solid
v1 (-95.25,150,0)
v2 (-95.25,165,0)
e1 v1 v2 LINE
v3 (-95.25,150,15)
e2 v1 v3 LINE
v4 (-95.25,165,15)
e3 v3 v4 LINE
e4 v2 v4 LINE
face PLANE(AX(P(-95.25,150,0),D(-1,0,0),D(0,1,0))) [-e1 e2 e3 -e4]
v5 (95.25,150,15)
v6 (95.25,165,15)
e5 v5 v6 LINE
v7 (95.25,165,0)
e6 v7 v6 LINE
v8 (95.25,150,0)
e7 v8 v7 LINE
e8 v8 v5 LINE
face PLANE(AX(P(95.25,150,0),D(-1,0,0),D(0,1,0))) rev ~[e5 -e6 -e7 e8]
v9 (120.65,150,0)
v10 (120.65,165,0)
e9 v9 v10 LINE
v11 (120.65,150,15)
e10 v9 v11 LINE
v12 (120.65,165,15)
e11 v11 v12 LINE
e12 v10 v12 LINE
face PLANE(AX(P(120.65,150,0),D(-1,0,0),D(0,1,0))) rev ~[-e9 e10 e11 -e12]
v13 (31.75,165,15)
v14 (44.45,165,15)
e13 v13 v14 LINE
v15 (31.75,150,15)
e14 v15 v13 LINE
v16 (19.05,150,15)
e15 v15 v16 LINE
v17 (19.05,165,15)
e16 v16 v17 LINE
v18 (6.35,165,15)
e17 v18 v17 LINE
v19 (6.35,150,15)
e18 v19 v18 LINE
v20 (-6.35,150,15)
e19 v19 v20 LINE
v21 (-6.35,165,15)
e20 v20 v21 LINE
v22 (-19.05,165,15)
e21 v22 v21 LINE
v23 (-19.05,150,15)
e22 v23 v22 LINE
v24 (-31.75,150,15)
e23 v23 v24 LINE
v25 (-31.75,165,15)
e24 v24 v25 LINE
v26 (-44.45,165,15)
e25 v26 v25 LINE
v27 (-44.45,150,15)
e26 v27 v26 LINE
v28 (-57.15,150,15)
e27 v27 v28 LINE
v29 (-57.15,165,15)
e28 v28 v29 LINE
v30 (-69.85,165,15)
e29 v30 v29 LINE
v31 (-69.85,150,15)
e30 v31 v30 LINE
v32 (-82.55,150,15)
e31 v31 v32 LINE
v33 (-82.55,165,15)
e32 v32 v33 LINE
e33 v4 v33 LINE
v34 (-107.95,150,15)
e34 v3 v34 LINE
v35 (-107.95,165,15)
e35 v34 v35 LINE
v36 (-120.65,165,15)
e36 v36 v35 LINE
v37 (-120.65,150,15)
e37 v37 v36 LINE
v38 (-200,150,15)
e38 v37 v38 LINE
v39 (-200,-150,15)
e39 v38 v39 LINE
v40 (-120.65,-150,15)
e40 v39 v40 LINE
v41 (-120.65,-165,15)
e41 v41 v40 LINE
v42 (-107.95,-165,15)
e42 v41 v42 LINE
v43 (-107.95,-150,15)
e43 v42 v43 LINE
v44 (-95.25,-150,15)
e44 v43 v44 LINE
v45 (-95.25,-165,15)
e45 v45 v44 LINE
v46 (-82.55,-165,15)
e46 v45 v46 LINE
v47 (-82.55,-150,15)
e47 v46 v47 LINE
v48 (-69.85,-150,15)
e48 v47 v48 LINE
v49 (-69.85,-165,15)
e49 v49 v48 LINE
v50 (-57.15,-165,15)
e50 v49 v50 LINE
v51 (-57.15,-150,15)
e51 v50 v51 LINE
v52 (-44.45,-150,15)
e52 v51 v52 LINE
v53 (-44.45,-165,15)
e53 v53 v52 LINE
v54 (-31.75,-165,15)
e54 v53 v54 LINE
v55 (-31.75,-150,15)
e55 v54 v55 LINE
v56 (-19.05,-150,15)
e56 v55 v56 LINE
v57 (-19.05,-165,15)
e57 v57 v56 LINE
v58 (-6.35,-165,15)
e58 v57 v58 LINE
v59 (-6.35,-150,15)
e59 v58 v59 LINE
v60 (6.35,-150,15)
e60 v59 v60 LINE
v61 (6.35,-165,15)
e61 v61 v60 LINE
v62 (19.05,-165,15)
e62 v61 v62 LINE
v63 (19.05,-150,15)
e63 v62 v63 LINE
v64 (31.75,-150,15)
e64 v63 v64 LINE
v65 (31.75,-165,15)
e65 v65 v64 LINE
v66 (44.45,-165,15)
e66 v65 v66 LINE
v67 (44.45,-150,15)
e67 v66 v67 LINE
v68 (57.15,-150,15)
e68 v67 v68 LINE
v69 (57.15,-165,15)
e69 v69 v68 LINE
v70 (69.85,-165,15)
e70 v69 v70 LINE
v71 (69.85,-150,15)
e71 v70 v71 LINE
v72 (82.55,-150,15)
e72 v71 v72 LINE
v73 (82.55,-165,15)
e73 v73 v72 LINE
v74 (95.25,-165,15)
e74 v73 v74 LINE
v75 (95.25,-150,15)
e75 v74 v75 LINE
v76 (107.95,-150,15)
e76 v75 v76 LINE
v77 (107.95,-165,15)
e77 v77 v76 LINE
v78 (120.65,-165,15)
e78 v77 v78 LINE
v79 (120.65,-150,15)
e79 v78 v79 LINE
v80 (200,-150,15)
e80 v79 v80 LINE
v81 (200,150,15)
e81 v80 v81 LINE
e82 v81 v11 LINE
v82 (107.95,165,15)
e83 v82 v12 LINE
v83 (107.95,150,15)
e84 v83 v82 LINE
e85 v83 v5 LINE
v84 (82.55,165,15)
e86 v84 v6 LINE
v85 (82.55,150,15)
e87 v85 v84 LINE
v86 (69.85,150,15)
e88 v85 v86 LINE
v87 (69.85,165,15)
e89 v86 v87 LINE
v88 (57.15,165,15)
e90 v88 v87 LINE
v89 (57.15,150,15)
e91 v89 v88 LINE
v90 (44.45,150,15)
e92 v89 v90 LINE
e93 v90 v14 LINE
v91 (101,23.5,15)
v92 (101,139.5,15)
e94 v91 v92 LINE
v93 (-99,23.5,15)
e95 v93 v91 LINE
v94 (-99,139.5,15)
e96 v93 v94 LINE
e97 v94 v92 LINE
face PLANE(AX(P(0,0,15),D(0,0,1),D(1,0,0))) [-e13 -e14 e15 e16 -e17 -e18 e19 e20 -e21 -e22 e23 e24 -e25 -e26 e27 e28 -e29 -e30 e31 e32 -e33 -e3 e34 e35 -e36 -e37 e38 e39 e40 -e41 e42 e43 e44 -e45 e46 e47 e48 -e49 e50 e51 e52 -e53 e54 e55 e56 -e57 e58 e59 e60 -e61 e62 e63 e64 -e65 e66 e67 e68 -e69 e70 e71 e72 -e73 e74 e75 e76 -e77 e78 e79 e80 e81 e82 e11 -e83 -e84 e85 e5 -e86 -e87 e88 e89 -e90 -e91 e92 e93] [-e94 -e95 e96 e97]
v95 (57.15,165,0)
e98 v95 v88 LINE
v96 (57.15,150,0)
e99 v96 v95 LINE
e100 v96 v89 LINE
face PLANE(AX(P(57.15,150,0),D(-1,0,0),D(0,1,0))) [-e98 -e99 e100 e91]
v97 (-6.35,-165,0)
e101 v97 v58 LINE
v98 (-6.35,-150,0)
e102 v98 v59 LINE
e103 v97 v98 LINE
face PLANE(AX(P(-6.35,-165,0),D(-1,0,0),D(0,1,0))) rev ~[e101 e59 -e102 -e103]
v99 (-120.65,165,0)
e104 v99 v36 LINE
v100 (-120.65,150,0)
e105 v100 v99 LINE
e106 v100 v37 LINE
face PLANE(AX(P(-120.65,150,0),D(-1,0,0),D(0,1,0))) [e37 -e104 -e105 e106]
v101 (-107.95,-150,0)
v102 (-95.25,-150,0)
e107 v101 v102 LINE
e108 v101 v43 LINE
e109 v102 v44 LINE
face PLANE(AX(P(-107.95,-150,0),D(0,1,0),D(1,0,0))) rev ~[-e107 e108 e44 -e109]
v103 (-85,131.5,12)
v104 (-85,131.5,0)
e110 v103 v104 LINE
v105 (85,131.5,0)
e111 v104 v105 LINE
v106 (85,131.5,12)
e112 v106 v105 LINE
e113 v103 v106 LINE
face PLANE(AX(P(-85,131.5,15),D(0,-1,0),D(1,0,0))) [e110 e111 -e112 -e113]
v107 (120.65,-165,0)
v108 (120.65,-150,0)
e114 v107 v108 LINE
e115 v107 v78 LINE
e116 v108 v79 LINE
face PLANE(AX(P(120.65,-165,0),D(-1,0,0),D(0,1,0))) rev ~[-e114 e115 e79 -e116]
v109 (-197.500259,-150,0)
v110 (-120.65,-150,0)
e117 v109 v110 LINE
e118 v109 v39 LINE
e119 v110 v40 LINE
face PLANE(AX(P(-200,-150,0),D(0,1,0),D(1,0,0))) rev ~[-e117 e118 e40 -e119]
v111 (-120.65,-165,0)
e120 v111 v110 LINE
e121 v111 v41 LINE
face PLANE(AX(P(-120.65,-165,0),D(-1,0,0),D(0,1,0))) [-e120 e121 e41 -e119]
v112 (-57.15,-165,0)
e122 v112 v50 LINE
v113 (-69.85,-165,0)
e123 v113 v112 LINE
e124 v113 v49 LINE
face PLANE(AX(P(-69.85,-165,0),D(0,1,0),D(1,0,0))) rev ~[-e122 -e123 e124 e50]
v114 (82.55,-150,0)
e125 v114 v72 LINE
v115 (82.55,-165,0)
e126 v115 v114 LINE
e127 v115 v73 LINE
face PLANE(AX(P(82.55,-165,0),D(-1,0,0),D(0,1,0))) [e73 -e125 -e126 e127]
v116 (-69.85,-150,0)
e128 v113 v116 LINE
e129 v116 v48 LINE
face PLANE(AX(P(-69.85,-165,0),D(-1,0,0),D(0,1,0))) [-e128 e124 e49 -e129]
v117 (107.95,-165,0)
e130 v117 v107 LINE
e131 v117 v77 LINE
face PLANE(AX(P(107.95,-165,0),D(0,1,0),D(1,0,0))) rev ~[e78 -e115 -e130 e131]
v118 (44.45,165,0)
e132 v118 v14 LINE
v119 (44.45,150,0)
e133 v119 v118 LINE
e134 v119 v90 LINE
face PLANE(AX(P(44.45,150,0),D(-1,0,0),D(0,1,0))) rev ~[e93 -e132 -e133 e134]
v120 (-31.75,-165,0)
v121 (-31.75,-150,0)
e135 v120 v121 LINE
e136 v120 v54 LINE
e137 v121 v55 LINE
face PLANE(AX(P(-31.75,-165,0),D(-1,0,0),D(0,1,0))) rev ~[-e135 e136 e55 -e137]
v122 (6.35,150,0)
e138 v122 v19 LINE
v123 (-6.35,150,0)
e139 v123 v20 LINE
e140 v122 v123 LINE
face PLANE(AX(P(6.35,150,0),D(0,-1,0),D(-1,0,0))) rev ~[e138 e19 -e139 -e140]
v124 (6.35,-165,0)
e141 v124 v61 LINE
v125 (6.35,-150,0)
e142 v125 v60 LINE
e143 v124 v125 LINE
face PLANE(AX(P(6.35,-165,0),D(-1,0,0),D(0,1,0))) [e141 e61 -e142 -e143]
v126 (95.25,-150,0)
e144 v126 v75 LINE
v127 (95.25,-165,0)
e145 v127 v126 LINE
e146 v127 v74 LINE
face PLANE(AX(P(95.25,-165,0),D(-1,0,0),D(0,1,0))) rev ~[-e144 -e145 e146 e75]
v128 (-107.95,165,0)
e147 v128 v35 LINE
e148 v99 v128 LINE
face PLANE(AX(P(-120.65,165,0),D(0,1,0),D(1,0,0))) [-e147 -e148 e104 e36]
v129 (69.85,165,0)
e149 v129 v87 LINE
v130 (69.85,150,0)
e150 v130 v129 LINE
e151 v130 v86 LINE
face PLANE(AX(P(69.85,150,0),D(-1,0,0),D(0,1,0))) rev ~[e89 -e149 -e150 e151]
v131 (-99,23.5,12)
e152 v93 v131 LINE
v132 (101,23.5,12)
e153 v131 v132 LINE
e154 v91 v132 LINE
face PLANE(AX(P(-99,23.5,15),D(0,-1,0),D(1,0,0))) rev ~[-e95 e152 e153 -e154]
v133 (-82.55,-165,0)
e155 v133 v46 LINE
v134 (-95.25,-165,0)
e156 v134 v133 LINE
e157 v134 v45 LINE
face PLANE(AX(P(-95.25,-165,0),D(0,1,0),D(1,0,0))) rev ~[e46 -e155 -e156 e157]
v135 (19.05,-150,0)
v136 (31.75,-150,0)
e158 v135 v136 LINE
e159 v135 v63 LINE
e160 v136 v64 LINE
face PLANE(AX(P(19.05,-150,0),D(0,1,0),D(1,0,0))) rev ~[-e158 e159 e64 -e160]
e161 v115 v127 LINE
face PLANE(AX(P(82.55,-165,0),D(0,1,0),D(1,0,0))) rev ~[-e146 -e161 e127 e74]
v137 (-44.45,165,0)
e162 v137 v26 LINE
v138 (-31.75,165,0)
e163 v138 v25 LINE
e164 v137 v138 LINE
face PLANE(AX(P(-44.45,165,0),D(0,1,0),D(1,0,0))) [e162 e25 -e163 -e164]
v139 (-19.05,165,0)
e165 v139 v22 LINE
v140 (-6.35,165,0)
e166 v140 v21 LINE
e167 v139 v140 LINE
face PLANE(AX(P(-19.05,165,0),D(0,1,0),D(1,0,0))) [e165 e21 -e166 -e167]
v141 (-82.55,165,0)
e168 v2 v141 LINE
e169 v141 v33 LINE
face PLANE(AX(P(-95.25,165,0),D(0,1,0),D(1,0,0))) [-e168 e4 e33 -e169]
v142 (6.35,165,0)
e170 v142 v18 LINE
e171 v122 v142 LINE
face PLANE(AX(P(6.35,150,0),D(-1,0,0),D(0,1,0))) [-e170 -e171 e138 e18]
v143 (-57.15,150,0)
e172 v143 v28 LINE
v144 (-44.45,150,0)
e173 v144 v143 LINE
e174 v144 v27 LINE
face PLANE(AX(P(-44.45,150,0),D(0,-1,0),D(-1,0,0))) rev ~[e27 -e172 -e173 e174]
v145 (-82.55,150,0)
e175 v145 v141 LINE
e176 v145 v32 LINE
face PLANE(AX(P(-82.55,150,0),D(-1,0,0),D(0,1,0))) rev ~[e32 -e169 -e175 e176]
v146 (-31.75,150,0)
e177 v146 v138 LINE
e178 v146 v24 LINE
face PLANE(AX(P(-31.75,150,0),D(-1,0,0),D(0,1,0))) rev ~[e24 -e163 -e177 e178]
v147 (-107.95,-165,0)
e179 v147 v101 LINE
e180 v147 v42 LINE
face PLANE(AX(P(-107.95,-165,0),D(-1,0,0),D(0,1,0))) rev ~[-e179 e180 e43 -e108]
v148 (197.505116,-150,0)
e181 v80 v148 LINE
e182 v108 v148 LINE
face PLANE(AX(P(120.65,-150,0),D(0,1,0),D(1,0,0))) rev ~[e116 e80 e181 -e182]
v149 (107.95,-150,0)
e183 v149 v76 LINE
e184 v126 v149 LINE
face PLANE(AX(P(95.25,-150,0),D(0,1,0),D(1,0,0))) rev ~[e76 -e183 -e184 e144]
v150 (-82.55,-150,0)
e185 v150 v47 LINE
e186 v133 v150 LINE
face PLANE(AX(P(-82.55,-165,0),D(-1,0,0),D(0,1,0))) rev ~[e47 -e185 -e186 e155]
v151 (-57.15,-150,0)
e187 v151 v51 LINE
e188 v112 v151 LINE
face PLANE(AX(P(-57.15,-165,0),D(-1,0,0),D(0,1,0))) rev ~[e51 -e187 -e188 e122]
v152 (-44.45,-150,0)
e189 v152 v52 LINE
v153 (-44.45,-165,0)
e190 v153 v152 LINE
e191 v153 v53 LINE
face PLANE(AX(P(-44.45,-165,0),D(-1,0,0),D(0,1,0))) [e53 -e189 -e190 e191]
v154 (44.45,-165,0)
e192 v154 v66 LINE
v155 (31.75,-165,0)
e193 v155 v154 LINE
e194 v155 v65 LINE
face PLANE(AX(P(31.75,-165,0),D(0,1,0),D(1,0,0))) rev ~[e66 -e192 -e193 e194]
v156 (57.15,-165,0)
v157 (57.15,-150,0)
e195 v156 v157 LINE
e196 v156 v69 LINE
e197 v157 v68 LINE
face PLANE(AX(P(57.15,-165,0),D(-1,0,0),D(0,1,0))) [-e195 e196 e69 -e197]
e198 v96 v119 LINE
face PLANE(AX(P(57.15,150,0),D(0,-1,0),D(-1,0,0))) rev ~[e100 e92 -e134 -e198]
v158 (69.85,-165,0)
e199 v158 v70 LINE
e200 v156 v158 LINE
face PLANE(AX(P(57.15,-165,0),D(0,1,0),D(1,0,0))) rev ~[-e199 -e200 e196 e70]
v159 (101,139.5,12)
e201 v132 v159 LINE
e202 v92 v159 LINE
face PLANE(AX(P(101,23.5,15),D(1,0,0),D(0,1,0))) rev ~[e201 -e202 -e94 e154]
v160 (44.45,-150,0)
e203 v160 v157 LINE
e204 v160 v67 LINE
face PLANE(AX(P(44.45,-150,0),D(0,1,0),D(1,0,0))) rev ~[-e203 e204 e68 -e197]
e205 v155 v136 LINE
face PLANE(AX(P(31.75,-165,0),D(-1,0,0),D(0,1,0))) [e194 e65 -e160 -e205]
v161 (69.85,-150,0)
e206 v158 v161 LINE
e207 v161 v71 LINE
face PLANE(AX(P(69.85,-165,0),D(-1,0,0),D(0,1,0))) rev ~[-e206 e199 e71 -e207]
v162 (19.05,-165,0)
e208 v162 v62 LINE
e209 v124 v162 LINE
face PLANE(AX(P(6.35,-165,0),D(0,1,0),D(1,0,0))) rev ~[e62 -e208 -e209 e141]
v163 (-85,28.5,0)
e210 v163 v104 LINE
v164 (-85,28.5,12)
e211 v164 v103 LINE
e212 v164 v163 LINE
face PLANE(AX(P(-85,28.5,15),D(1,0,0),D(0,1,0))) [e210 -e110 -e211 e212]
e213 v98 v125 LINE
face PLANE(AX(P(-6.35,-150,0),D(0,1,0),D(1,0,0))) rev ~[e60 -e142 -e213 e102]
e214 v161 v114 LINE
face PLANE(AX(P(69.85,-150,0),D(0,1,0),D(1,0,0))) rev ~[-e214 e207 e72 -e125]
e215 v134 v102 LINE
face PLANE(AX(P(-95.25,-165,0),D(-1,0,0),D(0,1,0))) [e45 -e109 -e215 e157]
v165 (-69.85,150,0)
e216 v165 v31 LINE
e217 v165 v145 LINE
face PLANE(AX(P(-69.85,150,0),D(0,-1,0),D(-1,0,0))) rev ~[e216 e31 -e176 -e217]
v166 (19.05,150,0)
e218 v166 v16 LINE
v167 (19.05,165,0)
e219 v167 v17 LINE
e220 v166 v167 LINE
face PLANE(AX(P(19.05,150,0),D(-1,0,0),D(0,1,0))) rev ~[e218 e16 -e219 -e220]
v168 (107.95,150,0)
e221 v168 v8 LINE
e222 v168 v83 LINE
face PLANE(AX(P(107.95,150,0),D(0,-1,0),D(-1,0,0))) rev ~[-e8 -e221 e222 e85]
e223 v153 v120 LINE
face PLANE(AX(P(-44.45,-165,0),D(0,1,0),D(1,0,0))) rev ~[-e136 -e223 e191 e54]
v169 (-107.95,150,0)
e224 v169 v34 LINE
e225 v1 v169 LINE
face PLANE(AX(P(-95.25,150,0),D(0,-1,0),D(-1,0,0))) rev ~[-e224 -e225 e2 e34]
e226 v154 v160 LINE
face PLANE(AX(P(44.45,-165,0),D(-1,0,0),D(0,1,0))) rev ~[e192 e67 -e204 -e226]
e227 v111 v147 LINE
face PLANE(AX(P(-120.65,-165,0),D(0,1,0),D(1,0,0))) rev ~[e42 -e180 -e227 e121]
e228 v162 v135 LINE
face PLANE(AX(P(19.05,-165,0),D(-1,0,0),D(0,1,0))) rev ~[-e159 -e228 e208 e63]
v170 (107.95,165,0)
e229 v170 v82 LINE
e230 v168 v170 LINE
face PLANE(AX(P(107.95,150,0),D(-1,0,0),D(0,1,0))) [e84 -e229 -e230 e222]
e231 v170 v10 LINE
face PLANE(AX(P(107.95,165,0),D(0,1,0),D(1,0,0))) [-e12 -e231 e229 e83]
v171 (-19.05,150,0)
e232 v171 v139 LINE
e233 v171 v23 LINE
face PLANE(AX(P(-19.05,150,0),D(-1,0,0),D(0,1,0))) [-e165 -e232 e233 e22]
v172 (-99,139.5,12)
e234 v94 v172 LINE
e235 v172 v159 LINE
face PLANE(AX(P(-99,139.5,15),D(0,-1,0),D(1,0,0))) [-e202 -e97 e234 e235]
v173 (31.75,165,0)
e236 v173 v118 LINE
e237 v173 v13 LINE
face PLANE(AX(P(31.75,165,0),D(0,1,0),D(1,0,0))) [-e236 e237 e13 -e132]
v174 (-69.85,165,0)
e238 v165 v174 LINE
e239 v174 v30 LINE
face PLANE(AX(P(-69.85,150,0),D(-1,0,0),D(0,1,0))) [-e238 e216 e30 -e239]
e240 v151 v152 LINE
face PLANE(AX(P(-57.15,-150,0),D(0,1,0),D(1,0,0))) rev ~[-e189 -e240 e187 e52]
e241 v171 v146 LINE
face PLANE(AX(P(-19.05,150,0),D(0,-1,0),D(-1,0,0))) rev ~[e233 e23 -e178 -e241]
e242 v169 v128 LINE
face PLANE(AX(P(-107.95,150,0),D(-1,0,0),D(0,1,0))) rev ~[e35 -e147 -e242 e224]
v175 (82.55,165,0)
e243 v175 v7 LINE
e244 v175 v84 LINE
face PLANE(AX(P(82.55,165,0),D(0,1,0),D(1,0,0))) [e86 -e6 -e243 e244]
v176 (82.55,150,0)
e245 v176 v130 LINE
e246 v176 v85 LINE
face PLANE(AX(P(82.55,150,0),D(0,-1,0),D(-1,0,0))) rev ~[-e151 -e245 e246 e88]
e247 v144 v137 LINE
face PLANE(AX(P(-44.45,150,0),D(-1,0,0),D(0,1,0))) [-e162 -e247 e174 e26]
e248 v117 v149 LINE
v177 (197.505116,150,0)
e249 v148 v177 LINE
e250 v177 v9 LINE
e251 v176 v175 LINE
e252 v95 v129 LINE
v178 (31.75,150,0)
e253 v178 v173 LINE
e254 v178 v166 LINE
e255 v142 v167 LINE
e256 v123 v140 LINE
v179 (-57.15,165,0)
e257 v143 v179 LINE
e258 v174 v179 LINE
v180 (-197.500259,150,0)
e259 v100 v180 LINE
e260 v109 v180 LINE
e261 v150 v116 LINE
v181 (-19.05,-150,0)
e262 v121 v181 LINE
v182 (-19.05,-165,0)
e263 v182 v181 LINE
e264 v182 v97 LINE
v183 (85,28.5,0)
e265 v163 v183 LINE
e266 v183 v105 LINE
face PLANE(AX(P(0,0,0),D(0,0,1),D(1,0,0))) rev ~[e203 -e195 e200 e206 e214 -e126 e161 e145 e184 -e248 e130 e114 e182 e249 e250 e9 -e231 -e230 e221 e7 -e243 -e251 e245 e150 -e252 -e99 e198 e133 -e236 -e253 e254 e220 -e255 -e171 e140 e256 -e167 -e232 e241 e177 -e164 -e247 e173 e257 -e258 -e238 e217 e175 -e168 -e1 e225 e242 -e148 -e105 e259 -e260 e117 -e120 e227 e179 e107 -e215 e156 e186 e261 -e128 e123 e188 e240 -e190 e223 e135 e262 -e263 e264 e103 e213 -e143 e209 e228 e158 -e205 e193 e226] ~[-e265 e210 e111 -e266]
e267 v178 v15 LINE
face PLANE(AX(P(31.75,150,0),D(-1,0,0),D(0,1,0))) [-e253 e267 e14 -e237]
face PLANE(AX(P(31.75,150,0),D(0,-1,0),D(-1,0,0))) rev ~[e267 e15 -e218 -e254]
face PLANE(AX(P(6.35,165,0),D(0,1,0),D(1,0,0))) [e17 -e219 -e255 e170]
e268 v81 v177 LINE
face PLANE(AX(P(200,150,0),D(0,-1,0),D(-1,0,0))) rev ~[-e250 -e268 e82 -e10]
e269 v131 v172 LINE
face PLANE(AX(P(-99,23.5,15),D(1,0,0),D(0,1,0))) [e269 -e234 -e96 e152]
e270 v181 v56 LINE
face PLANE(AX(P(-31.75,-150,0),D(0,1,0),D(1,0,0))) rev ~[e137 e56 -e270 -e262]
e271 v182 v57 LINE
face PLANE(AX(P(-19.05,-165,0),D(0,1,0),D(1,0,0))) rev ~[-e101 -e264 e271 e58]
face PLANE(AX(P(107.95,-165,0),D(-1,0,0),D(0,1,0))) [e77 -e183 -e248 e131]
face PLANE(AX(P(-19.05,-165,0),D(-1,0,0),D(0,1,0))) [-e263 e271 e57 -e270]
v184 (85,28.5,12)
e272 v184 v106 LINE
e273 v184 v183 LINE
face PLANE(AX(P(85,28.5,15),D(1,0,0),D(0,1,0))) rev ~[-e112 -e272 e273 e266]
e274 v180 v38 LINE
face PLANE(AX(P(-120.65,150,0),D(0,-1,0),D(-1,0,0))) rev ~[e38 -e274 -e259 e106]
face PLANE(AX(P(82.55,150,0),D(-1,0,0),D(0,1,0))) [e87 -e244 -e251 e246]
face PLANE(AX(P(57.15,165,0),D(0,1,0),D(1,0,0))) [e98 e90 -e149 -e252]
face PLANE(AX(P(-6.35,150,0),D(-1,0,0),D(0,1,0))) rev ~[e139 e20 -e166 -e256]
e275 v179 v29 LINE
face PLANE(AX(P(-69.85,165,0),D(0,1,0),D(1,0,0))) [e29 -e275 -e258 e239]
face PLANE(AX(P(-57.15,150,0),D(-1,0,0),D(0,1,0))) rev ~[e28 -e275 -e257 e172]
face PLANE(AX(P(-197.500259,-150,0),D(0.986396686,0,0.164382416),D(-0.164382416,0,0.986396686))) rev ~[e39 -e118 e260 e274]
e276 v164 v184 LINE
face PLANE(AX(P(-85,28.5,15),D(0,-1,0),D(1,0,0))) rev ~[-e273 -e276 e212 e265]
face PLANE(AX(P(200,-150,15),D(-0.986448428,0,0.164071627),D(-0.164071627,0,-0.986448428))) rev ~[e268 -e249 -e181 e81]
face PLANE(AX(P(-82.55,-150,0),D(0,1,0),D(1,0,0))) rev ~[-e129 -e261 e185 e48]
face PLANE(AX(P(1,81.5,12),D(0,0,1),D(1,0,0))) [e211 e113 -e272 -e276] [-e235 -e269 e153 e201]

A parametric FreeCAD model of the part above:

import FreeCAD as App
import Part
import Sketcher

V = App.Vector

doc = App.newDocument("Part")
body = doc.addObject("PartDesign::Body", "Body")

sketch1 = doc.addObject("Sketcher::SketchObject", "Sketch")
body.addObject(sketch1)
sketch1.AttachmentSupport = (doc.XY_Plane, [""])
sketch1.MapMode = "FlatFace"
sketch1.addGeometry(Part.LineSegment(V(200, -150, 0), V(200, 150, 0)), False)
sketch1.addGeometry(Part.LineSegment(V(200, 150, 0), V(120.65, 150, 0)), False)
sketch1.addGeometry(Part.LineSegment(V(120.65, 150, 0), V(120.65, 165, 0)), False)
sketch1.addGeometry(Part.LineSegment(V(120.65, 165, 0), V(107.95, 165, 0)), False)
sketch1.addGeometry(Part.LineSegment(V(107.95, 165, 0), V(107.95, 150, 0)), False)
sketch1.addGeometry(Part.LineSegment(V(107.95, 150, 0), V(95.25, 150, 0)), False)
sketch1.addGeometry(Part.LineSegment(V(95.25, 150, 0), V(95.25, 165, 0)), False)
sketch1.addGeometry(Part.LineSegment(V(95.25, 165, 0), V(82.55, 165, 0)), False)
sketch1.addGeometry(Part.LineSegment(V(82.55, 165, 0), V(82.55, 150, 0)), False)
sketch1.addGeometry(Part.LineSegment(V(82.55, 150, 0), V(69.85, 150, 0)), False)
sketch1.addGeometry(Part.LineSegment(V(69.85, 150, 0), V(69.85, 165, 0)), False)
sketch1.addGeometry(Part.LineSegment(V(69.85, 165, 0), V(57.15, 165, 0)), False)
sketch1.addGeometry(Part.LineSegment(V(57.15, 165, 0), V(57.15, 150, 0)), False)
sketch1.addGeometry(Part.LineSegment(V(57.15, 150, 0), V(44.45, 150, 0)), False)
sketch1.addGeometry(Part.LineSegment(V(44.45, 150, 0), V(44.45, 165, 0)), False)
sketch1.addGeometry(Part.LineSegment(V(44.45, 165, 0), V(31.75, 165, 0)), False)
sketch1.addGeometry(Part.LineSegment(V(31.75, 165, 0), V(31.75, 150, 0)), False)
sketch1.addGeometry(Part.LineSegment(V(31.75, 150, 0), V(19.05, 150, 0)), False)
sketch1.addGeometry(Part.LineSegment(V(19.05, 150, 0), V(19.05, 165, 0)), False)
sketch1.addGeometry(Part.LineSegment(V(19.05, 165, 0), V(6.35, 165, 0)), False)
sketch1.addGeometry(Part.LineSegment(V(6.35, 165, 0), V(6.35, 150, 0)), False)
sketch1.addGeometry(Part.LineSegment(V(6.35, 150, 0), V(-6.35, 150, 0)), False)
sketch1.addGeometry(Part.LineSegment(V(-6.35, 150, 0), V(-6.35, 165, 0)), False)
sketch1.addGeometry(Part.LineSegment(V(-6.35, 165, 0), V(-19.05, 165, 0)), False)
sketch1.addGeometry(Part.LineSegment(V(-19.05, 165, 0), V(-19.05, 150, 0)), False)
sketch1.addGeometry(Part.LineSegment(V(-19.05, 150, 0), V(-31.75, 150, 0)), False)
sketch1.addGeometry(Part.LineSegment(V(-31.75, 150, 0), V(-31.75, 165, 0)), False)
sketch1.addGeometry(Part.LineSegment(V(-31.75, 165, 0), V(-44.45, 165, 0)), False)
sketch1.addGeometry(Part.LineSegment(V(-44.45, 165, 0), V(-44.45, 150, 0)), False)
sketch1.addGeometry(Part.LineSegment(V(-44.45, 150, 0), V(-57.15, 150, 0)), False)
sketch1.addGeometry(Part.LineSegment(V(-57.15, 150, 0), V(-57.15, 165, 0)), False)
sketch1.addGeometry(Part.LineSegment(V(-57.15, 165, 0), V(-69.85, 165, 0)), False)
sketch1.addGeometry(Part.LineSegment(V(-69.85, 165, 0), V(-69.85, 150, 0)), False)
sketch1.addGeometry(Part.LineSegment(V(-69.85, 150, 0), V(-82.55, 150, 0)), False)
sketch1.addGeometry(Part.LineSegment(V(-82.55, 150, 0), V(-82.55, 165, 0)), False)
sketch1.addGeometry(Part.LineSegment(V(-82.55, 165, 0), V(-95.25, 165, 0)), False)
sketch1.addGeometry(Part.LineSegment(V(-95.25, 165, 0), V(-95.25, 150, 0)), False)
sketch1.addGeometry(Part.LineSegment(V(-95.25, 150, 0), V(-107.95, 150, 0)), False)
sketch1.addGeometry(Part.LineSegment(V(-107.95, 150, 0), V(-107.95, 165, 0)), False)
sketch1.addGeometry(Part.LineSegment(V(-107.95, 165, 0), V(-120.65, 165, 0)), False)
sketch1.addGeometry(Part.LineSegment(V(-120.65, 165, 0), V(-120.65, 150, 0)), False)
sketch1.addGeometry(Part.LineSegment(V(-120.65, 150, 0), V(-200, 150, 0)), False)
sketch1.addGeometry(Part.LineSegment(V(-200, 150, 0), V(-200, -150, 0)), False)
sketch1.addGeometry(Part.LineSegment(V(-200, -150, 0), V(-120.65, -150, 0)), False)
sketch1.addGeometry(Part.LineSegment(V(-120.65, -150, 0), V(-120.65, -165, 0)), False)
sketch1.addGeometry(Part.LineSegment(V(-120.65, -165, 0), V(-107.95, -165, 0)), False)
sketch1.addGeometry(Part.LineSegment(V(-107.95, -165, 0), V(-107.95, -150, 0)), False)
sketch1.addGeometry(Part.LineSegment(V(-107.95, -150, 0), V(-95.25, -150, 0)), False)
sketch1.addGeometry(Part.LineSegment(V(-95.25, -150, 0), V(-95.25, -165, 0)), False)
sketch1.addGeometry(Part.LineSegment(V(-95.25, -165, 0), V(-82.55, -165, 0)), False)
sketch1.addGeometry(Part.LineSegment(V(-82.55, -165, 0), V(-82.55, -150, 0)), False)
sketch1.addGeometry(Part.LineSegment(V(-82.55, -150, 0), V(-69.85, -150, 0)), False)
sketch1.addGeometry(Part.LineSegment(V(-69.85, -150, 0), V(-69.85, -165, 0)), False)
sketch1.addGeometry(Part.LineSegment(V(-69.85, -165, 0), V(-57.15, -165, 0)), False)
sketch1.addGeometry(Part.LineSegment(V(-57.15, -165, 0), V(-57.15, -150, 0)), False)
sketch1.addGeometry(Part.LineSegment(V(-57.15, -150, 0), V(-44.45, -150, 0)), False)
sketch1.addGeometry(Part.LineSegment(V(-44.45, -150, 0), V(-44.45, -165, 0)), False)
sketch1.addGeometry(Part.LineSegment(V(-44.45, -165, 0), V(-31.75, -165, 0)), False)
sketch1.addGeometry(Part.LineSegment(V(-31.75, -165, 0), V(-31.75, -150, 0)), False)
sketch1.addGeometry(Part.LineSegment(V(-31.75, -150, 0), V(-19.05, -150, 0)), False)
sketch1.addGeometry(Part.LineSegment(V(-19.05, -150, 0), V(-19.05, -165, 0)), False)
sketch1.addGeometry(Part.LineSegment(V(-19.05, -165, 0), V(-6.35, -165, 0)), False)
sketch1.addGeometry(Part.LineSegment(V(-6.35, -165, 0), V(-6.35, -150, 0)), False)
sketch1.addGeometry(Part.LineSegment(V(-6.35, -150, 0), V(6.35, -150, 0)), False)
sketch1.addGeometry(Part.LineSegment(V(6.35, -150, 0), V(6.35, -165, 0)), False)
sketch1.addGeometry(Part.LineSegment(V(6.35, -165, 0), V(19.05, -165, 0)), False)
sketch1.addGeometry(Part.LineSegment(V(19.05, -165, 0), V(19.05, -150, 0)), False)
sketch1.addGeometry(Part.LineSegment(V(19.05, -150, 0), V(31.75, -150, 0)), False)
sketch1.addGeometry(Part.LineSegment(V(31.75, -150, 0), V(31.75, -165, 0)), False)
sketch1.addGeometry(Part.LineSegment(V(31.75, -165, 0), V(44.45, -165, 0)), False)
sketch1.addGeometry(Part.LineSegment(V(44.45, -165, 0), V(44.45, -150, 0)), False)
sketch1.addGeometry(Part.LineSegment(V(44.45, -150, 0), V(57.15, -150, 0)), False)
sketch1.addGeometry(Part.LineSegment(V(57.15, -150, 0), V(57.15, -165, 0)), False)
sketch1.addGeometry(Part.LineSegment(V(57.15, -165, 0), V(69.85, -165, 0)), False)
sketch1.addGeometry(Part.LineSegment(V(69.85, -165, 0), V(69.85, -150, 0)), False)
sketch1.addGeometry(Part.LineSegment(V(69.85, -150, 0), V(82.55, -150, 0)), False)
sketch1.addGeometry(Part.LineSegment(V(82.55, -150, 0), V(82.55, -165, 0)), False)
sketch1.addGeometry(Part.LineSegment(V(82.55, -165, 0), V(95.25, -165, 0)), False)
sketch1.addGeometry(Part.LineSegment(V(95.25, -165, 0), V(95.25, -150, 0)), False)
sketch1.addGeometry(Part.LineSegment(V(95.25, -150, 0), V(107.95, -150, 0)), False)
sketch1.addGeometry(Part.LineSegment(V(107.95, -150, 0), V(107.95, -165, 0)), False)
sketch1.addGeometry(Part.LineSegment(V(107.95, -165, 0), V(120.65, -165, 0)), False)
sketch1.addGeometry(Part.LineSegment(V(120.65, -165, 0), V(120.65, -150, 0)), False)
sketch1.addGeometry(Part.LineSegment(V(120.65, -150, 0), V(200, -150, 0)), False)
sketch1.addConstraint(Sketcher.Constraint("Coincident", 0, 2, 1, 1))
sketch1.addConstraint(Sketcher.Constraint("Coincident", 1, 2, 2, 1))
sketch1.addConstraint(Sketcher.Constraint("Coincident", 2, 2, 3, 1))
sketch1.addConstraint(Sketcher.Constraint("Coincident", 3, 2, 4, 1))
sketch1.addConstraint(Sketcher.Constraint("Coincident", 4, 2, 5, 1))
sketch1.addConstraint(Sketcher.Constraint("Coincident", 5, 2, 6, 1))
sketch1.addConstraint(Sketcher.Constraint("Coincident", 6, 2, 7, 1))
sketch1.addConstraint(Sketcher.Constraint("Coincident", 7, 2, 8, 1))
sketch1.addConstraint(Sketcher.Constraint("Coincident", 8, 2, 9, 1))
sketch1.addConstraint(Sketcher.Constraint("Coincident", 9, 2, 10, 1))
sketch1.addConstraint(Sketcher.Constraint("Coincident", 10, 2, 11, 1))
sketch1.addConstraint(Sketcher.Constraint("Coincident", 11, 2, 12, 1))
sketch1.addConstraint(Sketcher.Constraint("Coincident", 12, 2, 13, 1))
sketch1.addConstraint(Sketcher.Constraint("Coincident", 13, 2, 14, 1))
sketch1.addConstraint(Sketcher.Constraint("Coincident", 14, 2, 15, 1))
sketch1.addConstraint(Sketcher.Constraint("Coincident", 15, 2, 16, 1))
sketch1.addConstraint(Sketcher.Constraint("Coincident", 16, 2, 17, 1))
sketch1.addConstraint(Sketcher.Constraint("Coincident", 17, 2, 18, 1))
sketch1.addConstraint(Sketcher.Constraint("Coincident", 18, 2, 19, 1))
sketch1.addConstraint(Sketcher.Constraint("Coincident", 19, 2, 20, 1))
sketch1.addConstraint(Sketcher.Constraint("Coincident", 20, 2, 21, 1))
sketch1.addConstraint(Sketcher.Constraint("Coincident", 21, 2, 22, 1))
sketch1.addConstraint(Sketcher.Constraint("Coincident", 22, 2, 23, 1))
sketch1.addConstraint(Sketcher.Constraint("Coincident", 23, 2, 24, 1))
sketch1.addConstraint(Sketcher.Constraint("Coincident", 24, 2, 25, 1))
sketch1.addConstraint(Sketcher.Constraint("Coincident", 25, 2, 26, 1))
sketch1.addConstraint(Sketcher.Constraint("Coincident", 26, 2, 27, 1))
sketch1.addConstraint(Sketcher.Constraint("Coincident", 27, 2, 28, 1))
sketch1.addConstraint(Sketcher.Constraint("Coincident", 28, 2, 29, 1))
sketch1.addConstraint(Sketcher.Constraint("Coincident", 29, 2, 30, 1))
sketch1.addConstraint(Sketcher.Constraint("Coincident", 30, 2, 31, 1))
sketch1.addConstraint(Sketcher.Constraint("Coincident", 31, 2, 32, 1))
sketch1.addConstraint(Sketcher.Constraint("Coincident", 32, 2, 33, 1))
sketch1.addConstraint(Sketcher.Constraint("Coincident", 33, 2, 34, 1))
sketch1.addConstraint(Sketcher.Constraint("Coincident", 34, 2, 35, 1))
sketch1.addConstraint(Sketcher.Constraint("Coincident", 35, 2, 36, 1))
sketch1.addConstraint(Sketcher.Constraint("Coincident", 36, 2, 37, 1))
sketch1.addConstraint(Sketcher.Constraint("Coincident", 37, 2, 38, 1))
sketch1.addConstraint(Sketcher.Constraint("Coincident", 38, 2, 39, 1))
sketch1.addConstraint(Sketcher.Constraint("Coincident", 39, 2, 40, 1))
sketch1.addConstraint(Sketcher.Constraint("Coincident", 40, 2, 41, 1))
sketch1.addConstraint(Sketcher.Constraint("Coincident", 41, 2, 42, 1))
sketch1.addConstraint(Sketcher.Constraint("Coincident", 42, 2, 43, 1))
sketch1.addConstraint(Sketcher.Constraint("Coincident", 43, 2, 44, 1))
sketch1.addConstraint(Sketcher.Constraint("Coincident", 44, 2, 45, 1))
sketch1.addConstraint(Sketcher.Constraint("Coincident", 45, 2, 46, 1))
sketch1.addConstraint(Sketcher.Constraint("Coincident", 46, 2, 47, 1))
sketch1.addConstraint(Sketcher.Constraint("Coincident", 47, 2, 48, 1))
sketch1.addConstraint(Sketcher.Constraint("Coincident", 48, 2, 49, 1))
sketch1.addConstraint(Sketcher.Constraint("Coincident", 49, 2, 50, 1))
sketch1.addConstraint(Sketcher.Constraint("Coincident", 50, 2, 51, 1))
sketch1.addConstraint(Sketcher.Constraint("Coincident", 51, 2, 52, 1))
sketch1.addConstraint(Sketcher.Constraint("Coincident", 52, 2, 53, 1))
sketch1.addConstraint(Sketcher.Constraint("Coincident", 53, 2, 54, 1))
sketch1.addConstraint(Sketcher.Constraint("Coincident", 54, 2, 55, 1))
sketch1.addConstraint(Sketcher.Constraint("Coincident", 55, 2, 56, 1))
sketch1.addConstraint(Sketcher.Constraint("Coincident", 56, 2, 57, 1))
sketch1.addConstraint(Sketcher.Constraint("Coincident", 57, 2, 58, 1))
sketch1.addConstraint(Sketcher.Constraint("Coincident", 58, 2, 59, 1))
sketch1.addConstraint(Sketcher.Constraint("Coincident", 59, 2, 60, 1))
sketch1.addConstraint(Sketcher.Constraint("Coincident", 60, 2, 61, 1))
sketch1.addConstraint(Sketcher.Constraint("Coincident", 61, 2, 62, 1))
sketch1.addConstraint(Sketcher.Constraint("Coincident", 62, 2, 63, 1))
sketch1.addConstraint(Sketcher.Constraint("Coincident", 63, 2, 64, 1))
sketch1.addConstraint(Sketcher.Constraint("Coincident", 64, 2, 65, 1))
sketch1.addConstraint(Sketcher.Constraint("Coincident", 65, 2, 66, 1))
sketch1.addConstraint(Sketcher.Constraint("Coincident", 66, 2, 67, 1))
sketch1.addConstraint(Sketcher.Constraint("Coincident", 67, 2, 68, 1))
sketch1.addConstraint(Sketcher.Constraint("Coincident", 68, 2, 69, 1))
sketch1.addConstraint(Sketcher.Constraint("Coincident", 69, 2, 70, 1))
sketch1.addConstraint(Sketcher.Constraint("Coincident", 70, 2, 71, 1))
sketch1.addConstraint(Sketcher.Constraint("Coincident", 71, 2, 72, 1))
sketch1.addConstraint(Sketcher.Constraint("Coincident", 72, 2, 73, 1))
sketch1.addConstraint(Sketcher.Constraint("Coincident", 73, 2, 74, 1))
sketch1.addConstraint(Sketcher.Constraint("Coincident", 74, 2, 75, 1))
sketch1.addConstraint(Sketcher.Constraint("Coincident", 75, 2, 76, 1))
sketch1.addConstraint(Sketcher.Constraint("Coincident", 76, 2, 77, 1))
sketch1.addConstraint(Sketcher.Constraint("Coincident", 77, 2, 78, 1))
sketch1.addConstraint(Sketcher.Constraint("Coincident", 78, 2, 79, 1))
sketch1.addConstraint(Sketcher.Constraint("Coincident", 79, 2, 80, 1))
sketch1.addConstraint(Sketcher.Constraint("Coincident", 80, 2, 81, 1))
sketch1.addConstraint(Sketcher.Constraint("Coincident", 81, 2, 82, 1))
sketch1.addConstraint(Sketcher.Constraint("Coincident", 82, 2, 83, 1))
sketch1.addConstraint(Sketcher.Constraint("Coincident", 83, 2, 0, 1))
sketch1.addConstraint(Sketcher.Constraint("Vertical", 0))
sketch1.addConstraint(Sketcher.Constraint("Horizontal", 1))
sketch1.addConstraint(Sketcher.Constraint("Vertical", 2))
sketch1.addConstraint(Sketcher.Constraint("Horizontal", 3))
sketch1.addConstraint(Sketcher.Constraint("Vertical", 4))
sketch1.addConstraint(Sketcher.Constraint("Horizontal", 5))
sketch1.addConstraint(Sketcher.Constraint("Vertical", 6))
sketch1.addConstraint(Sketcher.Constraint("Horizontal", 7))
sketch1.addConstraint(Sketcher.Constraint("Vertical", 8))
sketch1.addConstraint(Sketcher.Constraint("Horizontal", 9))
sketch1.addConstraint(Sketcher.Constraint("Vertical", 10))
sketch1.addConstraint(Sketcher.Constraint("Horizontal", 11))
sketch1.addConstraint(Sketcher.Constraint("Vertical", 12))
sketch1.addConstraint(Sketcher.Constraint("Horizontal", 13))
sketch1.addConstraint(Sketcher.Constraint("Vertical", 14))
sketch1.addConstraint(Sketcher.Constraint("Horizontal", 15))
sketch1.addConstraint(Sketcher.Constraint("Vertical", 16))
sketch1.addConstraint(Sketcher.Constraint("Horizontal", 17))
sketch1.addConstraint(Sketcher.Constraint("Vertical", 18))
sketch1.addConstraint(Sketcher.Constraint("Horizontal", 19))
sketch1.addConstraint(Sketcher.Constraint("Vertical", 20))
sketch1.addConstraint(Sketcher.Constraint("Horizontal", 21))
sketch1.addConstraint(Sketcher.Constraint("Vertical", 22))
sketch1.addConstraint(Sketcher.Constraint("Horizontal", 23))
sketch1.addConstraint(Sketcher.Constraint("Vertical", 24))
sketch1.addConstraint(Sketcher.Constraint("Horizontal", 25))
sketch1.addConstraint(Sketcher.Constraint("Vertical", 26))
sketch1.addConstraint(Sketcher.Constraint("Horizontal", 27))
sketch1.addConstraint(Sketcher.Constraint("Vertical", 28))
sketch1.addConstraint(Sketcher.Constraint("Horizontal", 29))
sketch1.addConstraint(Sketcher.Constraint("Vertical", 30))
sketch1.addConstraint(Sketcher.Constraint("Horizontal", 31))
sketch1.addConstraint(Sketcher.Constraint("Vertical", 32))
sketch1.addConstraint(Sketcher.Constraint("Horizontal", 33))
sketch1.addConstraint(Sketcher.Constraint("Vertical", 34))
sketch1.addConstraint(Sketcher.Constraint("Horizontal", 35))
sketch1.addConstraint(Sketcher.Constraint("Vertical", 36))
sketch1.addConstraint(Sketcher.Constraint("Horizontal", 37))
sketch1.addConstraint(Sketcher.Constraint("Vertical", 38))
sketch1.addConstraint(Sketcher.Constraint("Horizontal", 39))
sketch1.addConstraint(Sketcher.Constraint("Vertical", 40))
sketch1.addConstraint(Sketcher.Constraint("Horizontal", 41))
sketch1.addConstraint(Sketcher.Constraint("Vertical", 42))
sketch1.addConstraint(Sketcher.Constraint("Horizontal", 43))
sketch1.addConstraint(Sketcher.Constraint("Vertical", 44))
sketch1.addConstraint(Sketcher.Constraint("Horizontal", 45))
sketch1.addConstraint(Sketcher.Constraint("Vertical", 46))
sketch1.addConstraint(Sketcher.Constraint("Horizontal", 47))
sketch1.addConstraint(Sketcher.Constraint("Vertical", 48))
sketch1.addConstraint(Sketcher.Constraint("Horizontal", 49))
sketch1.addConstraint(Sketcher.Constraint("Vertical", 50))
sketch1.addConstraint(Sketcher.Constraint("Horizontal", 51))
sketch1.addConstraint(Sketcher.Constraint("Vertical", 52))
sketch1.addConstraint(Sketcher.Constraint("Horizontal", 53))
sketch1.addConstraint(Sketcher.Constraint("Vertical", 54))
sketch1.addConstraint(Sketcher.Constraint("Horizontal", 55))
sketch1.addConstraint(Sketcher.Constraint("Vertical", 56))
sketch1.addConstraint(Sketcher.Constraint("Horizontal", 57))
sketch1.addConstraint(Sketcher.Constraint("Vertical", 58))
sketch1.addConstraint(Sketcher.Constraint("Horizontal", 59))
sketch1.addConstraint(Sketcher.Constraint("Vertical", 60))
sketch1.addConstraint(Sketcher.Constraint("Horizontal", 61))
sketch1.addConstraint(Sketcher.Constraint("Vertical", 62))
sketch1.addConstraint(Sketcher.Constraint("Horizontal", 63))
sketch1.addConstraint(Sketcher.Constraint("Vertical", 64))
sketch1.addConstraint(Sketcher.Constraint("Horizontal", 65))
sketch1.addConstraint(Sketcher.Constraint("Vertical", 66))
sketch1.addConstraint(Sketcher.Constraint("Horizontal", 67))
sketch1.addConstraint(Sketcher.Constraint("Vertical", 68))
sketch1.addConstraint(Sketcher.Constraint("Horizontal", 69))
sketch1.addConstraint(Sketcher.Constraint("Vertical", 70))
sketch1.addConstraint(Sketcher.Constraint("Horizontal", 71))
sketch1.addConstraint(Sketcher.Constraint("Vertical", 72))
sketch1.addConstraint(Sketcher.Constraint("Horizontal", 73))
sketch1.addConstraint(Sketcher.Constraint("Vertical", 74))
sketch1.addConstraint(Sketcher.Constraint("Horizontal", 75))
sketch1.addConstraint(Sketcher.Constraint("Vertical", 76))
sketch1.addConstraint(Sketcher.Constraint("Horizontal", 77))
sketch1.addConstraint(Sketcher.Constraint("Vertical", 78))
sketch1.addConstraint(Sketcher.Constraint("Horizontal", 79))
sketch1.addConstraint(Sketcher.Constraint("Vertical", 80))
sketch1.addConstraint(Sketcher.Constraint("Horizontal", 81))
sketch1.addConstraint(Sketcher.Constraint("Vertical", 82))
sketch1.addConstraint(Sketcher.Constraint("Horizontal", 83))
sketch1.addConstraint(Sketcher.Constraint("Symmetric", 0, 2, 42, 2, -1, 1))
sketch1.addConstraint(Sketcher.Constraint("Symmetric", 2, 2, 44, 2, -1, 1))
sketch1.addConstraint(Sketcher.Constraint("Symmetric", 4, 2, 46, 2, -1, 1))
sketch1.addConstraint(Sketcher.Constraint("Symmetric", 6, 2, 48, 2, -1, 1))
sketch1.addConstraint(Sketcher.Constraint("Symmetric", 8, 2, 50, 2, -1, 1))
sketch1.addConstraint(Sketcher.Constraint("Symmetric", 10, 2, 52, 2, -1, 1))
sketch1.addConstraint(Sketcher.Constraint("Symmetric", 12, 2, 54, 2, -1, 1))
sketch1.addConstraint(Sketcher.Constraint("Symmetric", 14, 2, 56, 2, -1, 1))
sketch1.addConstraint(Sketcher.Constraint("Symmetric", 16, 2, 58, 2, -1, 1))
sketch1.addConstraint(Sketcher.Constraint("Symmetric", 18, 2, 60, 2, -1, 1))
sketch1.addConstraint(Sketcher.Constraint("Symmetric", 20, 2, 62, 2, -1, 1))
sketch1.addConstraint(Sketcher.Constraint("Symmetric", 22, 2, 64, 2, -1, 1))
sketch1.addConstraint(Sketcher.Constraint("Symmetric", 24, 2, 66, 2, -1, 1))
sketch1.addConstraint(Sketcher.Constraint("Symmetric", 26, 2, 68, 2, -1, 1))
sketch1.addConstraint(Sketcher.Constraint("Symmetric", 28, 2, 70, 2, -1, 1))
sketch1.addConstraint(Sketcher.Constraint("Symmetric", 30, 2, 72, 2, -1, 1))
sketch1.addConstraint(Sketcher.Constraint("Symmetric", 32, 2, 74, 2, -1, 1))
sketch1.addConstraint(Sketcher.Constraint("Symmetric", 34, 2, 76, 2, -1, 1))
sketch1.addConstraint(Sketcher.Constraint("Symmetric", 36, 2, 78, 2, -1, 1))
sketch1.addConstraint(Sketcher.Constraint("Symmetric", 38, 2, 80, 2, -1, 1))
sketch1.addConstraint(Sketcher.Constraint("Symmetric", 40, 2, 82, 2, -1, 1))
sketch1.addConstraint(Sketcher.Constraint("Symmetric", 19, 2, 22, 2, -2))
sketch1.addConstraint(Sketcher.Constraint("Symmetric", 17, 2, 24, 2, -2))
sketch1.addConstraint(Sketcher.Constraint("Symmetric", 15, 2, 26, 2, -2))
sketch1.addConstraint(Sketcher.Constraint("Symmetric", 13, 2, 28, 2, -2))
sketch1.addConstraint(Sketcher.Constraint("Symmetric", 11, 2, 30, 2, -2))
sketch1.addConstraint(Sketcher.Constraint("Symmetric", 9, 2, 32, 2, -2))
sketch1.addConstraint(Sketcher.Constraint("Symmetric", 7, 2, 34, 2, -2))
sketch1.addConstraint(Sketcher.Constraint("Symmetric", 5, 2, 36, 2, -2))
sketch1.addConstraint(Sketcher.Constraint("Symmetric", 3, 2, 38, 2, -2))
sketch1.addConstraint(Sketcher.Constraint("Symmetric", 1, 2, 40, 2, -2))
sketch1.addConstraint(Sketcher.Constraint("Horizontal", 1, 2, 4, 2))
sketch1.addConstraint(Sketcher.Constraint("Horizontal", 3, 2, 6, 2))
sketch1.addConstraint(Sketcher.Constraint("Horizontal", 5, 2, 8, 2))
sketch1.addConstraint(Sketcher.Constraint("Horizontal", 7, 2, 10, 2))
sketch1.addConstraint(Sketcher.Constraint("Horizontal", 9, 2, 12, 2))
sketch1.addConstraint(Sketcher.Constraint("Horizontal", 11, 2, 14, 2))
sketch1.addConstraint(Sketcher.Constraint("Horizontal", 13, 2, 16, 2))
sketch1.addConstraint(Sketcher.Constraint("Horizontal", 15, 2, 18, 2))
sketch1.addConstraint(Sketcher.Constraint("Horizontal", 17, 2, 20, 2))
sketch1.addConstraint(Sketcher.Constraint("Equal", 3, 5))
sketch1.addConstraint(Sketcher.Constraint("Equal", 5, 7))
sketch1.addConstraint(Sketcher.Constraint("Equal", 7, 9))
sketch1.addConstraint(Sketcher.Constraint("Equal", 9, 11))
sketch1.addConstraint(Sketcher.Constraint("Equal", 11, 13))
sketch1.addConstraint(Sketcher.Constraint("Equal", 13, 15))
sketch1.addConstraint(Sketcher.Constraint("Equal", 15, 17))
sketch1.addConstraint(Sketcher.Constraint("Equal", 17, 19))
sketch1.addConstraint(Sketcher.Constraint("Equal", 19, 21))
sketch1.addConstraint(Sketcher.Constraint("DistanceY", 0, 1, 0, 2, 300.0))
sketch1.addConstraint(Sketcher.Constraint("DistanceY", 2, 1, 2, 2, 15.0))
sketch1.addConstraint(Sketcher.Constraint("DistanceX", 3, 2, 3, 1, 12.7))
sketch1.addConstraint(Sketcher.Constraint("DistanceX", -1, 1, 0, 2, 200.0))
pad1 = doc.addObject("PartDesign::Pad", "Pad")
body.addObject(pad1)
pad1.Profile = sketch1
pad1.Length = 15

sketch2 = doc.addObject("Sketcher::SketchObject", "Sketch001")
body.addObject(sketch2)
sketch2.AttachmentSupport = (doc.XZ_Plane, [""])
sketch2.MapMode = "FlatFace"
sketch2.AttachmentOffset = App.Placement(V(0, 0, 150), App.Rotation())
sketch2.addGeometry(Part.LineSegment(V(-200, 0, 0), V(-197.500259, 0, 0)), False)
sketch2.addGeometry(Part.LineSegment(V(-197.500259, 0, 0), V(-200, 15, 0)), False)
sketch2.addGeometry(Part.LineSegment(V(-200, 15, 0), V(-200, 0, 0)), False)
sketch2.addConstraint(Sketcher.Constraint("Coincident", 0, 2, 1, 1))
sketch2.addConstraint(Sketcher.Constraint("Coincident", 1, 2, 2, 1))
sketch2.addConstraint(Sketcher.Constraint("Coincident", 2, 2, 0, 1))
sketch2.addConstraint(Sketcher.Constraint("Horizontal", 0))
sketch2.addConstraint(Sketcher.Constraint("Vertical", 2))
sketch2.addConstraint(Sketcher.Constraint("PointOnObject", 0, 2, -1))
sketch2.addConstraint(Sketcher.Constraint("DistanceY", 2, 2, 2, 1, 15.0))
sketch2.addConstraint(Sketcher.Constraint("DistanceX", 1, 2, -1, 1, 200.0))
sketch2.addConstraint(Sketcher.Constraint("DistanceX", 0, 1, 0, 2, 2.499741))
pocket1 = doc.addObject("PartDesign::Pocket", "Pocket")
body.addObject(pocket1)
pocket1.Profile = sketch2
pocket1.Type = "ThroughAll"

sketch3 = doc.addObject("Sketcher::SketchObject", "Sketch002")
body.addObject(sketch3)
sketch3.AttachmentSupport = (doc.XZ_Plane, [""])
sketch3.MapMode = "FlatFace"
sketch3.AttachmentOffset = App.Placement(V(0, 0, 150), App.Rotation())
sketch3.addGeometry(Part.LineSegment(V(200, 15, 0), V(197.5, 0, 0)), False)
sketch3.addGeometry(Part.LineSegment(V(197.5, 0, 0), V(200, 0, 0)), False)
sketch3.addGeometry(Part.LineSegment(V(200, 0, 0), V(200, 15, 0)), False)
sketch3.addConstraint(Sketcher.Constraint("Coincident", 0, 2, 1, 1))
sketch3.addConstraint(Sketcher.Constraint("Coincident", 1, 2, 2, 1))
sketch3.addConstraint(Sketcher.Constraint("Coincident", 2, 2, 0, 1))
sketch3.addConstraint(Sketcher.Constraint("Horizontal", 1))
sketch3.addConstraint(Sketcher.Constraint("Vertical", 2))
sketch3.addConstraint(Sketcher.Constraint("PointOnObject", 0, 2, -1))
sketch3.addConstraint(Sketcher.Constraint("DistanceY", 2, 1, 2, 2, 15.0))
sketch3.addConstraint(Sketcher.Constraint("DistanceX", -1, 1, 1, 2, 200.0))
sketch3.addConstraint(Sketcher.Constraint("DistanceX", 1, 1, 1, 2, 2.494884))
pocket2 = doc.addObject("PartDesign::Pocket", "Pocket001")
body.addObject(pocket2)
pocket2.Profile = sketch3
pocket2.Type = "ThroughAll"

sketch4 = doc.addObject("Sketcher::SketchObject", "Sketch003")
body.addObject(sketch4)
sketch4.AttachmentSupport = (doc.XY_Plane, [""])
sketch4.MapMode = "FlatFace"
sketch4.AttachmentOffset = App.Placement(V(0, 0, 15), App.Rotation())
sketch4.addGeometry(Part.LineSegment(V(-85, 132, 0), V(-85, 28, 0)), False)
sketch4.addGeometry(Part.LineSegment(V(-85, 28, 0), V(85, 28, 0)), False)
sketch4.addGeometry(Part.LineSegment(V(85, 28, 0), V(85, 132, 0)), False)
sketch4.addGeometry(Part.LineSegment(V(85, 132, 0), V(-85, 132, 0)), False)
sketch4.addConstraint(Sketcher.Constraint("Coincident", 0, 2, 1, 1))
sketch4.addConstraint(Sketcher.Constraint("Coincident", 1, 2, 2, 1))
sketch4.addConstraint(Sketcher.Constraint("Coincident", 2, 2, 3, 1))
sketch4.addConstraint(Sketcher.Constraint("Coincident", 3, 2, 0, 1))
sketch4.addConstraint(Sketcher.Constraint("Vertical", 0))
sketch4.addConstraint(Sketcher.Constraint("Horizontal", 1))
sketch4.addConstraint(Sketcher.Constraint("Vertical", 2))
sketch4.addConstraint(Sketcher.Constraint("Horizontal", 3))
sketch4.addConstraint(Sketcher.Constraint("DistanceX", 1, 1, 1, 2, 170.0))
sketch4.addConstraint(Sketcher.Constraint("DistanceY", 0, 2, 0, 1, 103.0))
sketch4.addConstraint(Sketcher.Constraint("DistanceX", 0, 2, -1, 1, 85.0))
sketch4.addConstraint(Sketcher.Constraint("DistanceY", -1, 1, 0, 2, 28.5))
pocket3 = doc.addObject("PartDesign::Pocket", "Pocket002")
body.addObject(pocket3)
pocket3.Profile = sketch4
pocket3.Length = 15

sketch5 = doc.addObject("Sketcher::SketchObject", "Sketch004")
body.addObject(sketch5)
sketch5.AttachmentSupport = (doc.XY_Plane, [""])
sketch5.MapMode = "FlatFace"
sketch5.AttachmentOffset = App.Placement(V(0, 0, 15), App.Rotation())
sketch5.addGeometry(Part.LineSegment(V(-99, 140, 0), V(-99, 24, 0)), False)
sketch5.addGeometry(Part.LineSegment(V(-99, 24, 0), V(101, 24, 0)), False)
sketch5.addGeometry(Part.LineSegment(V(101, 24, 0), V(101, 140, 0)), False)
sketch5.addGeometry(Part.LineSegment(V(101, 140, 0), V(-99, 140, 0)), False)
sketch5.addGeometry(Part.LineSegment(V(85, 28, 0), V(-85, 28, 0)), False)
sketch5.addGeometry(Part.LineSegment(V(-85, 28, 0), V(-85, 132, 0)), False)
sketch5.addGeometry(Part.LineSegment(V(-85, 132, 0), V(85, 132, 0)), False)
sketch5.addGeometry(Part.LineSegment(V(85, 132, 0), V(85, 28, 0)), False)
sketch5.addConstraint(Sketcher.Constraint("Coincident", 0, 2, 1, 1))
sketch5.addConstraint(Sketcher.Constraint("Coincident", 1, 2, 2, 1))
sketch5.addConstraint(Sketcher.Constraint("Coincident", 2, 2, 3, 1))
sketch5.addConstraint(Sketcher.Constraint("Coincident", 3, 2, 0, 1))
sketch5.addConstraint(Sketcher.Constraint("Coincident", 4, 2, 5, 1))
sketch5.addConstraint(Sketcher.Constraint("Coincident", 5, 2, 6, 1))
sketch5.addConstraint(Sketcher.Constraint("Coincident", 6, 2, 7, 1))
sketch5.addConstraint(Sketcher.Constraint("Coincident", 7, 2, 4, 1))
sketch5.addConstraint(Sketcher.Constraint("Vertical", 0))
sketch5.addConstraint(Sketcher.Constraint("Horizontal", 1))
sketch5.addConstraint(Sketcher.Constraint("Vertical", 2))
sketch5.addConstraint(Sketcher.Constraint("Horizontal", 3))
sketch5.addConstraint(Sketcher.Constraint("Horizontal", 4))
sketch5.addConstraint(Sketcher.Constraint("Vertical", 5))
sketch5.addConstraint(Sketcher.Constraint("Horizontal", 6))
sketch5.addConstraint(Sketcher.Constraint("Vertical", 7))
sketch5.addConstraint(Sketcher.Constraint("DistanceX", 1, 1, 1, 2, 200.0))
sketch5.addConstraint(Sketcher.Constraint("DistanceX", 4, 2, 4, 1, 170.0))
sketch5.addConstraint(Sketcher.Constraint("DistanceY", 0, 2, 0, 1, 116.0))
sketch5.addConstraint(Sketcher.Constraint("DistanceY", 5, 1, 5, 2, 103.0))
sketch5.addConstraint(Sketcher.Constraint("DistanceX", 0, 2, -1, 1, 99.0))
sketch5.addConstraint(Sketcher.Constraint("DistanceX", 4, 2, -1, 1, 85.0))
sketch5.addConstraint(Sketcher.Constraint("DistanceY", 0, 2, 4, 2, 5.0))
sketch5.addConstraint(Sketcher.Constraint("DistanceY", -1, 1, 0, 2, 23.5))
pocket4 = doc.addObject("PartDesign::Pocket", "Pocket003")
body.addObject(pocket4)
pocket4.Profile = sketch5
pocket4.Length = 3

doc.recompute()
